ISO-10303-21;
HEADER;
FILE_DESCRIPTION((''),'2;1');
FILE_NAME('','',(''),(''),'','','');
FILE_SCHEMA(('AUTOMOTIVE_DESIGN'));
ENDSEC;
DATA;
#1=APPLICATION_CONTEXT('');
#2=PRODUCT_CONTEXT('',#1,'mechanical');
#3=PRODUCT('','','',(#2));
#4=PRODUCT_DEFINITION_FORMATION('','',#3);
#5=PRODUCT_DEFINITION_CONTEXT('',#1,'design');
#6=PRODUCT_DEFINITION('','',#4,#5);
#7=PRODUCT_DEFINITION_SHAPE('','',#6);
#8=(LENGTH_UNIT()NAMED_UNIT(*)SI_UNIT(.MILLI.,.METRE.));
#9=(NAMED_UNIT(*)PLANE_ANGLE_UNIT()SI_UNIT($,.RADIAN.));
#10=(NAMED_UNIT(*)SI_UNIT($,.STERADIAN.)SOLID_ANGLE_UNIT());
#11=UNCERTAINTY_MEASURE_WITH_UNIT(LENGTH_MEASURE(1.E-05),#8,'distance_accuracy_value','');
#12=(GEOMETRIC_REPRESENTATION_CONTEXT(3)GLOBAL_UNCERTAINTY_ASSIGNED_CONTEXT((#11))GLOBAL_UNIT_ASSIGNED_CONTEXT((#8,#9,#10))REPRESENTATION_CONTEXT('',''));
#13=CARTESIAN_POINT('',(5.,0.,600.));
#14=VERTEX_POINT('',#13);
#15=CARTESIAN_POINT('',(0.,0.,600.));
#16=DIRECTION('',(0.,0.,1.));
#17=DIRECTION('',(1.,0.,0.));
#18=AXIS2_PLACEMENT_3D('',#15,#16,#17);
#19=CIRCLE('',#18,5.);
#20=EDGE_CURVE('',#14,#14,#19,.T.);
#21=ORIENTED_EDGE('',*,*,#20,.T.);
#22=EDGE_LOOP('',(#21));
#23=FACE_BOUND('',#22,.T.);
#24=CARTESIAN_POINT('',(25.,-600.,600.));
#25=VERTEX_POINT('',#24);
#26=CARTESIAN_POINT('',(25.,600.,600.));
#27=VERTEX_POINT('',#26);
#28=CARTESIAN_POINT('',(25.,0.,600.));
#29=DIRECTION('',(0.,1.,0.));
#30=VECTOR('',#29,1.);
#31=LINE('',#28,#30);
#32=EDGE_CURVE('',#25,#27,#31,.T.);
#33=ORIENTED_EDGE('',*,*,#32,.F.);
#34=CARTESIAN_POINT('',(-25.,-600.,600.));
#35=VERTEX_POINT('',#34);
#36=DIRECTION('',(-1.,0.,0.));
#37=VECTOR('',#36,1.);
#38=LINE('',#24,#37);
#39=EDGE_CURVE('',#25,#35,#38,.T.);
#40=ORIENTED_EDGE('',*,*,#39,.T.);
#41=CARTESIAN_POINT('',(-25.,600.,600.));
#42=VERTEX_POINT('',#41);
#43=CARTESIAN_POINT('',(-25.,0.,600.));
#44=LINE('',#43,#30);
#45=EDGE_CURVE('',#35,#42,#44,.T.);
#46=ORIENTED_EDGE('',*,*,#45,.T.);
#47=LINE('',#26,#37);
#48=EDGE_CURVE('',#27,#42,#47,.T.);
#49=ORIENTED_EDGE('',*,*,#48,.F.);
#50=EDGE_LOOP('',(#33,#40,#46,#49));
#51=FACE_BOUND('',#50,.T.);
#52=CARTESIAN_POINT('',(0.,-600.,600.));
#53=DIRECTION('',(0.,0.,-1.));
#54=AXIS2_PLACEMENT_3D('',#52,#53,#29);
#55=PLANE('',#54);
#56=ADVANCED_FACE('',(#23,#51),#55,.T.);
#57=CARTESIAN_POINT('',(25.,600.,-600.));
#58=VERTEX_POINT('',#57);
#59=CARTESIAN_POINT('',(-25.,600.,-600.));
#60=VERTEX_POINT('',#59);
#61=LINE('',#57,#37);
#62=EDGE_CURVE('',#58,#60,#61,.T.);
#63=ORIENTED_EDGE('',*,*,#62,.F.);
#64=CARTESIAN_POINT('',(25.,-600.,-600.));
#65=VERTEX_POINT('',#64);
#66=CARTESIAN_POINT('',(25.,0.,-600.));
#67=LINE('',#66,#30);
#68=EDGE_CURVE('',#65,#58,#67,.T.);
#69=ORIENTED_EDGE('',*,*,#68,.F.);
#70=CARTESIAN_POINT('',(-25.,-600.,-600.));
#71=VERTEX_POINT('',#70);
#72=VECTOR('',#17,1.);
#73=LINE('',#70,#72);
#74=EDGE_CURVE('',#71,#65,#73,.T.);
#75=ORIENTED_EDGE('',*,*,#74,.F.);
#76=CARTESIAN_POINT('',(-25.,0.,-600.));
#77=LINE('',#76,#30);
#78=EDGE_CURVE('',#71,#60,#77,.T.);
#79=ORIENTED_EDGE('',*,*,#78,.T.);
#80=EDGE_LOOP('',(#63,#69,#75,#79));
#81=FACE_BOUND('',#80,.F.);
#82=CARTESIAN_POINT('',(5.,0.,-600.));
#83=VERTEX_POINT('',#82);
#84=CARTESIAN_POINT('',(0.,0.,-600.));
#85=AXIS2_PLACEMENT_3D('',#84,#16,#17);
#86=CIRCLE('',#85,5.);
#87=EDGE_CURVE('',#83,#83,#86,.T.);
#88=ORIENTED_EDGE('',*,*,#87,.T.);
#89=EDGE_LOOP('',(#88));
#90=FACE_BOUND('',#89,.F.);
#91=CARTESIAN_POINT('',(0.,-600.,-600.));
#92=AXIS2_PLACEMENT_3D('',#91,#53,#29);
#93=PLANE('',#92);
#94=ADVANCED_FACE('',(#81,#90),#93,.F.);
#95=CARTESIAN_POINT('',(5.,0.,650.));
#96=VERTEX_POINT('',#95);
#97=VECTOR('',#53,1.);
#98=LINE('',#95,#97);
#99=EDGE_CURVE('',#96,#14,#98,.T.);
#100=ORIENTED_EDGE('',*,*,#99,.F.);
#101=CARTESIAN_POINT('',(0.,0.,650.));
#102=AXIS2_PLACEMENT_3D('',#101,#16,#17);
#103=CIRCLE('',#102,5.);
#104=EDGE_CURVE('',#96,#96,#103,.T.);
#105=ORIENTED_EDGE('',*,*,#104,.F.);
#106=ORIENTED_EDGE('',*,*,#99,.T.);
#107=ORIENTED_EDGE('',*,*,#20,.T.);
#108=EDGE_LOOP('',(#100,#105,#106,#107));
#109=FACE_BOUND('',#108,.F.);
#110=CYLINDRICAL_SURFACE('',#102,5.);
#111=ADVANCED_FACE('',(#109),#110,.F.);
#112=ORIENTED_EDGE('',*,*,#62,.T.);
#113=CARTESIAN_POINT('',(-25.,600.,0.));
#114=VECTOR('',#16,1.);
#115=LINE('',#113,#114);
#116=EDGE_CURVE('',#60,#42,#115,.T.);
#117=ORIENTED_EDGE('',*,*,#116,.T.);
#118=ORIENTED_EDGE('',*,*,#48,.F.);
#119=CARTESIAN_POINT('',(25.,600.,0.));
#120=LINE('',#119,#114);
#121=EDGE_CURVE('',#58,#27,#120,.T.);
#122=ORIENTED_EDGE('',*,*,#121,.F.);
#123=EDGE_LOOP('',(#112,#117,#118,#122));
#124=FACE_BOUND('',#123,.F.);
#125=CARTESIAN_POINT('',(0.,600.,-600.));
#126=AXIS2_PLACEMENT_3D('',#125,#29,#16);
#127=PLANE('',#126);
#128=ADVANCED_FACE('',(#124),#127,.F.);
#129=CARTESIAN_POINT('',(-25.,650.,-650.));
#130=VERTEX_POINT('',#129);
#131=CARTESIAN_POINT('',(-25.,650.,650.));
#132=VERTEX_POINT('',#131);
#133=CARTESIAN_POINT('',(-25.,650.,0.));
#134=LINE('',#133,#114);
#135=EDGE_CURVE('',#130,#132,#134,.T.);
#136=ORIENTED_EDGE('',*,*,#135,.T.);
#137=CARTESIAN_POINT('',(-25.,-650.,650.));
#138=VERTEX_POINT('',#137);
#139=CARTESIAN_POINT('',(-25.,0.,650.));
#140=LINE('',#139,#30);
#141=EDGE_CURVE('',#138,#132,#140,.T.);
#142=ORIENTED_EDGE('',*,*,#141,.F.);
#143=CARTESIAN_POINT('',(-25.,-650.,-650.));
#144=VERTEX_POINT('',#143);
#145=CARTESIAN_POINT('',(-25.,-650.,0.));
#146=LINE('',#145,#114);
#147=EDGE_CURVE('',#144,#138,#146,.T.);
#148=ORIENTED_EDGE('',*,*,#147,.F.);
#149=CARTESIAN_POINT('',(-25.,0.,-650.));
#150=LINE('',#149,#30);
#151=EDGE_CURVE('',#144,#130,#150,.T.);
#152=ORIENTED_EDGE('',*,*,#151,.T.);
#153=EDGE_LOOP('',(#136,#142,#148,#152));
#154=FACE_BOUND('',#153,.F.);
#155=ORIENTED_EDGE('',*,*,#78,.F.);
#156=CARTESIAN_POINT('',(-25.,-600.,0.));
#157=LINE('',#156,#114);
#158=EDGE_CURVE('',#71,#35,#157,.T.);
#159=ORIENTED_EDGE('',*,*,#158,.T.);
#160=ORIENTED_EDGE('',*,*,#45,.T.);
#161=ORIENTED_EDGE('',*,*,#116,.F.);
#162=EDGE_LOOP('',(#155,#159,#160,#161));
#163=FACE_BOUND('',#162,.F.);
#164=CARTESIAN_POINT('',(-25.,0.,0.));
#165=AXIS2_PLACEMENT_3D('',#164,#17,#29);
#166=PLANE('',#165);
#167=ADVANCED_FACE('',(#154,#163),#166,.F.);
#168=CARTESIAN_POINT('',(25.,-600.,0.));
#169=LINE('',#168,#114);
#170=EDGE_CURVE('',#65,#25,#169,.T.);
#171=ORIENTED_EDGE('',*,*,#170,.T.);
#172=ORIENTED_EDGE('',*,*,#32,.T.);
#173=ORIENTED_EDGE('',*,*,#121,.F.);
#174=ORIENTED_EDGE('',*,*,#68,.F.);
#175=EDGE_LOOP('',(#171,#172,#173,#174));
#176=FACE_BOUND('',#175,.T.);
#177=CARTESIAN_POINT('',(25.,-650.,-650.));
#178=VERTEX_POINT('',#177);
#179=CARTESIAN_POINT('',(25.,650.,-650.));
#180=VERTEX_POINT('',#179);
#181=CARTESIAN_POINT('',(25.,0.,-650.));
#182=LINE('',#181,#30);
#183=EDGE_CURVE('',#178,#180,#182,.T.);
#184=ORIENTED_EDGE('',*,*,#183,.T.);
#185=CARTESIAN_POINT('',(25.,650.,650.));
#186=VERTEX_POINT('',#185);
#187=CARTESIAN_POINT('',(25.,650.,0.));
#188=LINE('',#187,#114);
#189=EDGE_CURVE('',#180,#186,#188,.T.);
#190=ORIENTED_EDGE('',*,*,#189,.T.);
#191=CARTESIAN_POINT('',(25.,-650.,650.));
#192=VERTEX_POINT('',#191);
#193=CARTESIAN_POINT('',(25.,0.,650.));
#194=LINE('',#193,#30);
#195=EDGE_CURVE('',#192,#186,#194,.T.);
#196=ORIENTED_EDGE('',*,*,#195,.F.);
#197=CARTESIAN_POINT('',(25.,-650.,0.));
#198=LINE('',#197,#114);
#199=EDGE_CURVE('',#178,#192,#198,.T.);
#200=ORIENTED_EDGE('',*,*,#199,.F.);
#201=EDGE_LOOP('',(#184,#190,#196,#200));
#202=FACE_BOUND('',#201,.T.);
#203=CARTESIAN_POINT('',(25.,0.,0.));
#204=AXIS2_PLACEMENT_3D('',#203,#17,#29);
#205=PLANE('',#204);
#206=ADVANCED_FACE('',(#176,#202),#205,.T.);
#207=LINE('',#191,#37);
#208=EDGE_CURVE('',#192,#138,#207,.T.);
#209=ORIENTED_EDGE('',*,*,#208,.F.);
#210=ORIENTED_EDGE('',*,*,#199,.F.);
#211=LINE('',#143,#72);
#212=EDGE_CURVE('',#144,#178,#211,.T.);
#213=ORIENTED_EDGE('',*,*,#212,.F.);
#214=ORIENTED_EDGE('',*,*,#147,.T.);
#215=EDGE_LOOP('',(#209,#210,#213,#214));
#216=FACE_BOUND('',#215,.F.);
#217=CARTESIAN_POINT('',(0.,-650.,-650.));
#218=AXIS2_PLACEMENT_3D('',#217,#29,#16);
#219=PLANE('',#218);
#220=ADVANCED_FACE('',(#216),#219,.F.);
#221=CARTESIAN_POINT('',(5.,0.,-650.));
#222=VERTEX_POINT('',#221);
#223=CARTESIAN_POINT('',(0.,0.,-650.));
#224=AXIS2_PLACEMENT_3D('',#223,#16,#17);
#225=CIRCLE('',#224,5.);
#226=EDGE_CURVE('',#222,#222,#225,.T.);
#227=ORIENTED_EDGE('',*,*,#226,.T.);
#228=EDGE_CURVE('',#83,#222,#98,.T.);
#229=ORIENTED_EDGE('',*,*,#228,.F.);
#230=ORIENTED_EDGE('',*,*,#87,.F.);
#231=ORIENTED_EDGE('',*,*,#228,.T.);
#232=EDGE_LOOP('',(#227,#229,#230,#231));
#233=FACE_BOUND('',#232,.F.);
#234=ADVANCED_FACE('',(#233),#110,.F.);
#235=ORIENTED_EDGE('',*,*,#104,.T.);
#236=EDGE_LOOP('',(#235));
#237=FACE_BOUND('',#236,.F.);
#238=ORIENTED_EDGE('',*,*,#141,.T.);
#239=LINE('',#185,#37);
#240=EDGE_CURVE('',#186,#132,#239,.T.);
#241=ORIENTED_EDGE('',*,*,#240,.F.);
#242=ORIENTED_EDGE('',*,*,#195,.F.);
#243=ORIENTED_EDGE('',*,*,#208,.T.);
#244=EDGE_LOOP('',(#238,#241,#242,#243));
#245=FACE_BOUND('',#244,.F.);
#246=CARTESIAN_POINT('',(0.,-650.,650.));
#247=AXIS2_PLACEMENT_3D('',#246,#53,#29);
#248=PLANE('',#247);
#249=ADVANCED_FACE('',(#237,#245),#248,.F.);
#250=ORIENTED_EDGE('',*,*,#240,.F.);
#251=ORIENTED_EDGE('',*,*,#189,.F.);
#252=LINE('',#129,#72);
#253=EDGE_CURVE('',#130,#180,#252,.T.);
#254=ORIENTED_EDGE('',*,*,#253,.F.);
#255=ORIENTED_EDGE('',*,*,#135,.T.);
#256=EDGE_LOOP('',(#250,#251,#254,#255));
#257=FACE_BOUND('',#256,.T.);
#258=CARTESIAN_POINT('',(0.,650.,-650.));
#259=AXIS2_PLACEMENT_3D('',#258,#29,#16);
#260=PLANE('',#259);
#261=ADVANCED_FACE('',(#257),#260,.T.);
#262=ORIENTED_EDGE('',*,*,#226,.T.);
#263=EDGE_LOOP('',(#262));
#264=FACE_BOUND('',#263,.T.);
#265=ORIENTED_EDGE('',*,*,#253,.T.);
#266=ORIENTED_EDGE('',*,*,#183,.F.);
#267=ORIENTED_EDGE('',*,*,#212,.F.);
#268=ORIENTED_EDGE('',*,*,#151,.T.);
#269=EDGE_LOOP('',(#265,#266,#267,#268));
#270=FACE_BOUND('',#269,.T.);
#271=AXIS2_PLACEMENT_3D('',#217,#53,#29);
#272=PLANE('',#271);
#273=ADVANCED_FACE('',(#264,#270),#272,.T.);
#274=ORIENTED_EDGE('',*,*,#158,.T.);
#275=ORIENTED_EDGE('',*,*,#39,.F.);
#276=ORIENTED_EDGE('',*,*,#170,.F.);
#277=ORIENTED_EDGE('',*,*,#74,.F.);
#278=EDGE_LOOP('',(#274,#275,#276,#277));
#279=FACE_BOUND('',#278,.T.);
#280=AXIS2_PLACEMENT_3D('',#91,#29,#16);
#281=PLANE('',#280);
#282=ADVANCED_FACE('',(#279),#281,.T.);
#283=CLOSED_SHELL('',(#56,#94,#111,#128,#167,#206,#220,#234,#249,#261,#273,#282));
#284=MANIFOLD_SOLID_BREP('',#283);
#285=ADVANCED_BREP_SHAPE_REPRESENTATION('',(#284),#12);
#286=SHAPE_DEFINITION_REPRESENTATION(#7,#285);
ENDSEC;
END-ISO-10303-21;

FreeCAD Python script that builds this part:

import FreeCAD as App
import Part
import Sketcher

V = App.Vector
Q = App.Units.Quantity


def add_polygon(sketch, points):
    """Adds a closed chain of lines whose ends are joined by coincident constraints."""
    first, n = sketch.GeometryCount, len(points)
    for a, b in zip(points, points[1:] + points[:1]):
        sketch.addGeometry(Part.LineSegment(App.Vector(*a, 0), App.Vector(*b, 0)), False)
    for i in range(n):
        sketch.addConstraint(Sketcher.Constraint("Coincident", first + i, 2, first + (i + 1) % n, 1))

doc = App.newDocument("Part")
params = doc.addObject("Spreadsheet::Sheet", "Params")
for row, (alias, value) in enumerate([
    ("sketch1_diameter", "10 mm"),
    ("pad1_length", "1500 mm"),
    ("sketch2_width", "1300 mm"),
    ("sketch2_width2", "1200 mm"),
    ("pad2_length", "50 mm"),
], start=1):
    params.set(f"A{row}", alias)
    params.set(f"B{row}", "=" + value)
    params.setAlias(f"B{row}", alias)

body = doc.addObject("PartDesign::Body", "Body")

sketch1 = doc.addObject("Sketcher::SketchObject", "Sketch")
body.addObject(sketch1)
sketch1.AttachmentSupport = (doc.XY_Plane, [""])
sketch1.MapMode = "FlatFace"
sketch1.AttachmentOffset = App.Placement(V(0, 0, 650), App.Rotation())
sketch1.addGeometry(Part.Circle(V(0, 0, 0), V(0, 0, 1), 5), False)
sketch1.addConstraint([
    Sketcher.Constraint("Coincident", 0, 3, -1, 1),
    Sketcher.Constraint("Diameter", 0, Q("10 mm")),
])
sketch1.setExpression("Constraints[1]", "Params.sketch1_diameter")
pad1 = doc.addObject("PartDesign::Pad", "Pad")
body.addObject(pad1)
pad1.Profile = sketch1
pad1.setExpression("Length", "Params.pad1_length")
pad1.Reversed = True
body2 = doc.addObject("PartDesign::Body", "Body001")

sketch2 = doc.addObject("Sketcher::SketchObject", "Sketch001")
body2.addObject(sketch2)
sketch2.AttachmentSupport = (doc.getObject("YZ_Plane001"), [""])
sketch2.MapMode = "FlatFace"
add_polygon(sketch2, [(-650, 650), (-650, -650), (650, -650), (650, 650)])
add_polygon(sketch2, [(600, -600), (-600, -600), (-600, 600), (600, 600)])
sketch2.addConstraint([
    Sketcher.Constraint("Vertical", 0),
    Sketcher.Constraint("Horizontal", 1),
    Sketcher.Constraint("Vertical", 2),
    Sketcher.Constraint("Horizontal", 3),
    Sketcher.Constraint("Horizontal", 4),
    Sketcher.Constraint("Vertical", 5),
    Sketcher.Constraint("Horizontal", 6),
    Sketcher.Constraint("Vertical", 7),
    Sketcher.Constraint("Symmetric", 0, 2, 2, 2, -1, 1),
    Sketcher.Constraint("Symmetric", 4, 2, 6, 2, -1, 1),
    Sketcher.Constraint("Equal", 3, 0),
    Sketcher.Constraint("Equal", 6, 5),
    Sketcher.Constraint("DistanceX", 1, 1, 1, 2, Q("1300 mm")),
    Sketcher.Constraint("DistanceX", 4, 2, 4, 1, Q("1200 mm")),
])
sketch2.setExpression("Constraints[20]", "Params.sketch2_width")
sketch2.setExpression("Constraints[21]", "Params.sketch2_width2")
pad2 = doc.addObject("PartDesign::Pad", "Pad001")
body2.addObject(pad2)
pad2.Profile = sketch2
pad2.setExpression("Length", "Params.pad2_length")
pad2.Midplane = True
doc.recompute()

boolean = doc.addObject("PartDesign::Boolean", "Boolean")
body2.addObject(boolean)
boolean.Type = "Cut"
boolean.addObjects([body])

doc.recompute()
